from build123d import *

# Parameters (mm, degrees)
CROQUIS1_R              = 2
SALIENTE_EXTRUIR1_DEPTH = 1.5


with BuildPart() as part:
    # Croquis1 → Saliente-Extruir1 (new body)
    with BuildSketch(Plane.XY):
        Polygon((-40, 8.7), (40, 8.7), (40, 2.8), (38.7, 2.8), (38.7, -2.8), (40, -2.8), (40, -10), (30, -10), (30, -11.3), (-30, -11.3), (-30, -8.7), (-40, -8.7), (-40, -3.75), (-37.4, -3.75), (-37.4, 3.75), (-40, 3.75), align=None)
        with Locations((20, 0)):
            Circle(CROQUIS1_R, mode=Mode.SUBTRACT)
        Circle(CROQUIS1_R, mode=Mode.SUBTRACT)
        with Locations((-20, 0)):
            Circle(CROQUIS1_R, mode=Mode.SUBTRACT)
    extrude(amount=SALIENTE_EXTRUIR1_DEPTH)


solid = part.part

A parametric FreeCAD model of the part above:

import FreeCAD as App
import Part
import Sketcher
from FreeCAD import Vector

doc = App.newDocument("Part")
params = doc.addObject("Spreadsheet::Sheet", "Params")
for row, (alias, value) in enumerate([
    ("sketch1_diameter", "4 mm"),
    ("sketch1_width", "80 mm"),
    ("sketch1_width2", "10 mm"),
    ("sketch1_width3", "2.6 mm"),
    ("sketch1_width4", "1.3 mm"),
    ("pad1_length", "1.5 mm"),
], start=1):
    params.set(f"A{row}", alias)
    params.set(f"B{row}", "=" + value)
    params.setAlias(f"B{row}", alias)

body = doc.addObject("PartDesign::Body", "Body")

# Sketch on XY plane
sketch1 = doc.addObject("Sketcher::SketchObject", "Sketch")
body.addObject(sketch1)
sketch1.AttachmentSupport = (doc.XY_Plane, [""])
sketch1.MapMode = "FlatFace"
sketch1.addGeometry(Part.LineSegment(Vector(40, 8.7, 0), Vector(-40, 8.7, 0)), False)
sketch1.addGeometry(Part.LineSegment(Vector(-40, 8.7, 0), Vector(-40, 3.8, 0)), False)
sketch1.addGeometry(Part.LineSegment(Vector(-40, 3.8, 0), Vector(-37.4, 3.8, 0)), False)
sketch1.addGeometry(Part.LineSegment(Vector(-37.4, 3.8, 0), Vector(-37.4, -3.8, 0)), False)
sketch1.addGeometry(Part.LineSegment(Vector(-37.4, -3.8, 0), Vector(-40, -3.8, 0)), False)
sketch1.addGeometry(Part.LineSegment(Vector(-40, -3.8, 0), Vector(-40, -8.7, 0)), False)
sketch1.addGeometry(Part.LineSegment(Vector(-40, -8.7, 0), Vector(-30, -8.7, 0)), False)
sketch1.addGeometry(Part.LineSegment(Vector(-30, -8.7, 0), Vector(-30, -11.3, 0)), False)
sketch1.addGeometry(Part.LineSegment(Vector(-30, -11.3, 0), Vector(30, -11.3, 0)), False)
sketch1.addGeometry(Part.LineSegment(Vector(30, -11.3, 0), Vector(30, -10, 0)), False)
sketch1.addGeometry(Part.LineSegment(Vector(30, -10, 0), Vector(40, -10, 0)), False)
sketch1.addGeometry(Part.LineSegment(Vector(40, -10, 0), Vector(40, -2.8, 0)), False)
sketch1.addGeometry(Part.LineSegment(Vector(40, -2.8, 0), Vector(38.7, -2.8, 0)), False)
sketch1.addGeometry(Part.LineSegment(Vector(38.7, -2.8, 0), Vector(38.7, 2.8, 0)), False)
sketch1.addGeometry(Part.LineSegment(Vector(38.7, 2.8, 0), Vector(40, 2.8, 0)), False)
sketch1.addGeometry(Part.LineSegment(Vector(40, 2.8, 0), Vector(40, 8.7, 0)), False)
sketch1.addGeometry(Part.Circle(Vector(20, 0, 0), Vector(0, 0, 1), 2), False)
sketch1.addGeometry(Part.Circle(Vector(0, 0, 0), Vector(0, 0, 1), 2), False)
sketch1.addGeometry(Part.Circle(Vector(-20, 0, 0), Vector(0, 0, 1), 2), False)
sketch1.addConstraint(Sketcher.Constraint("Coincident", 0, 2, 1, 1))
sketch1.addConstraint(Sketcher.Constraint("Coincident", 1, 2, 2, 1))
sketch1.addConstraint(Sketcher.Constraint("Coincident", 2, 2, 3, 1))
sketch1.addConstraint(Sketcher.Constraint("Coincident", 3, 2, 4, 1))
sketch1.addConstraint(Sketcher.Constraint("Coincident", 4, 2, 5, 1))
sketch1.addConstraint(Sketcher.Constraint("Coincident", 5, 2, 6, 1))
sketch1.addConstraint(Sketcher.Constraint("Coincident", 6, 2, 7, 1))
sketch1.addConstraint(Sketcher.Constraint("Coincident", 7, 2, 8, 1))
sketch1.addConstraint(Sketcher.Constraint("Coincident", 8, 2, 9, 1))
sketch1.addConstraint(Sketcher.Constraint("Coincident", 9, 2, 10, 1))
sketch1.addConstraint(Sketcher.Constraint("Coincident", 10, 2, 11, 1))
sketch1.addConstraint(Sketcher.Constraint("Coincident", 11, 2, 12, 1))
sketch1.addConstraint(Sketcher.Constraint("Coincident", 12, 2, 13, 1))
sketch1.addConstraint(Sketcher.Constraint("Coincident", 13, 2, 14, 1))
sketch1.addConstraint(Sketcher.Constraint("Coincident", 14, 2, 15, 1))
sketch1.addConstraint(Sketcher.Constraint("Coincident", 15, 2, 0, 1))
sketch1.addConstraint(Sketcher.Constraint("Horizontal", 0))
sketch1.addConstraint(Sketcher.Constraint("Vertical", 1))
sketch1.addConstraint(Sketcher.Constraint("Horizontal", 2))
sketch1.addConstraint(Sketcher.Constraint("Vertical", 3))
sketch1.addConstraint(Sketcher.Constraint("Horizontal", 4))
sketch1.addConstraint(Sketcher.Constraint("Vertical", 5))
sketch1.addConstraint(Sketcher.Constraint("Horizontal", 6))
sketch1.addConstraint(Sketcher.Constraint("Vertical", 7))
sketch1.addConstraint(Sketcher.Constraint("Horizontal", 8))
sketch1.addConstraint(Sketcher.Constraint("Vertical", 9))
sketch1.addConstraint(Sketcher.Constraint("Horizontal", 10))
sketch1.addConstraint(Sketcher.Constraint("Vertical", 11))
sketch1.addConstraint(Sketcher.Constraint("Horizontal", 12))
sketch1.addConstraint(Sketcher.Constraint("Vertical", 13))
sketch1.addConstraint(Sketcher.Constraint("Horizontal", 14))
sketch1.addConstraint(Sketcher.Constraint("Vertical", 15))
sketch1.addConstraint(Sketcher.Constraint("Coincident", 17, 3, -1, 1))
sketch1.addConstraint(Sketcher.Constraint("Equal", 16, 17))
sketch1.addConstraint(Sketcher.Constraint("Equal", 17, 18))
sketch1.addConstraint(Sketcher.Constraint("Symmetric", 16, 3, 18, 3, -1, 1))
sketch1.addConstraint(Sketcher.Constraint("Symmetric", 5, 2, 15, 2, -1, 1))
sketch1.addConstraint(Sketcher.Constraint("Symmetric", 1, 2, 4, 2, -1))
sketch1.addConstraint(Sketcher.Constraint("Symmetric", 11, 2, 14, 2, -1))
sketch1.addConstraint(Sketcher.Constraint("PointOnObject", 16, 3, -1))
sketch1.addConstraint(Sketcher.Constraint("Equal", 6, 10))
sketch1.addConstraint(Sketcher.Constraint("Equal", 4, 7))
sketch1.addConstraint(Sketcher.Constraint("Equal", 14, 9))
sketch1.addConstraint(Sketcher.Constraint("Diameter", 16, 4.0))
sketch1.addConstraint(Sketcher.Constraint("DistanceX", 0, 2, 0, 1, 80.0))
sketch1.addConstraint(Sketcher.Constraint("DistanceX", 6, 1, 6, 2, 10.0))
sketch1.addConstraint(Sketcher.Constraint("DistanceX", 2, 1, 2, 2, 2.6))
sketch1.addConstraint(Sketcher.Constraint("DistanceX", 12, 2, 12, 1, 1.3))
sketch1.addConstraint(Sketcher.Constraint("DistanceY", 3, 2, 3, 1, 7.5))
sketch1.addConstraint(Sketcher.Constraint("DistanceY", 11, 1, 11, 2, 7.2))
sketch1.addConstraint(Sketcher.Constraint("DistanceY", 13, 1, 13, 2, 5.6))
sketch1.addConstraint(Sketcher.Constraint("DistanceX", -1, 1, 16, 3, 20.0))
sketch1.setExpression("Constraints[43]", "Params.sketch1_diameter")
sketch1.setExpression("Constraints[44]", "Params.sketch1_width")
sketch1.setExpression("Constraints[45]", "Params.sketch1_width2")
sketch1.setExpression("Constraints[46]", "Params.sketch1_width3")
sketch1.setExpression("Constraints[47]", "Params.sketch1_width4")
pad1 = doc.addObject("PartDesign::Pad", "Pad")
body.addObject(pad1)
pad1.Profile = sketch1
pad1.setExpression("Length", "Params.pad1_length")

doc.recompute()
